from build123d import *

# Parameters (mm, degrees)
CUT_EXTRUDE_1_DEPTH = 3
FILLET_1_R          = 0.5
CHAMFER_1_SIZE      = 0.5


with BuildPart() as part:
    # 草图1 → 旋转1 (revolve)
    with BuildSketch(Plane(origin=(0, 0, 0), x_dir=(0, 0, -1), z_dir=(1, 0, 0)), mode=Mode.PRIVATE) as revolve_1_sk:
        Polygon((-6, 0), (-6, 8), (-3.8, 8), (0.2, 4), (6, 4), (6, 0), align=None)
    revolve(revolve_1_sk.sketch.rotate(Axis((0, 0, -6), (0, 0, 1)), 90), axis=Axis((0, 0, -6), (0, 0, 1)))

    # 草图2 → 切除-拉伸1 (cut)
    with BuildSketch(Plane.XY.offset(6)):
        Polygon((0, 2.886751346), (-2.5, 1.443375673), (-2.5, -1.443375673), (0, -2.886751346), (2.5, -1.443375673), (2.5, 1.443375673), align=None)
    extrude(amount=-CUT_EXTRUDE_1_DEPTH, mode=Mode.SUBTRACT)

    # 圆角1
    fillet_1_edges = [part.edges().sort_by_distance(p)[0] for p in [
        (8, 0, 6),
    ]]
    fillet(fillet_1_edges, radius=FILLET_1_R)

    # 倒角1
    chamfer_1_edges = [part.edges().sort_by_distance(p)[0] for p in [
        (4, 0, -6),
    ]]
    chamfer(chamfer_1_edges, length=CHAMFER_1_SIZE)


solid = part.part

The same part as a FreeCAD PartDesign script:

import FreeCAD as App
import Part
import Sketcher
from FreeCAD import Vector
Q = App.Units.Quantity


def edges_at(feature, points):
    """Names of the edges that pass closest to the given points."""
    edges = feature.Shape.Edges
    near = lambda p: min(range(len(edges)), key=lambda i: edges[i].distToShape(Part.Vertex(*p))[0])
    return sorted({f"Edge{near(p) + 1}" for p in points})

doc = App.newDocument("Part")
body = doc.addObject("PartDesign::Body", "Body")

# Sketch on YZ plane
sketch1 = body.newObject("Sketcher::SketchObject", "Sketch")
sketch1.AttachmentSupport = (doc.getObject("YZ_Plane"), [""])
sketch1.MapMode = "FlatFace"
sketch1.addGeometry([
    Part.LineSegment(Vector(8, 6, 0), Vector(0, 6, 0)),  # 0
    Part.LineSegment(Vector(0, 6, 0), Vector(0, -6, 0)),  # 1
    Part.LineSegment(Vector(0, -6, 0), Vector(4, -6, 0)),  # 2
    Part.LineSegment(Vector(4, -6, 0), Vector(4, -0.2, 0)),  # 3
    Part.LineSegment(Vector(4, -0.2, 0), Vector(8, 3.8, 0)),  # 4
    Part.LineSegment(Vector(8, 3.8, 0), Vector(8, 6, 0)),  # 5
], False)
sketch1.addConstraint([
    Sketcher.Constraint("Coincident", 0, 2, 1, 1),
    Sketcher.Constraint("Coincident", 1, 2, 2, 1),
    Sketcher.Constraint("Coincident", 2, 2, 3, 1),
    Sketcher.Constraint("Coincident", 3, 2, 4, 1),
    Sketcher.Constraint("Coincident", 4, 2, 5, 1),
    Sketcher.Constraint("Coincident", 5, 2, 0, 1),
    Sketcher.Constraint("Horizontal", 0),
    Sketcher.Constraint("Vertical", 1),
    Sketcher.Constraint("Horizontal", 2),
    Sketcher.Constraint("Vertical", 3),
    Sketcher.Constraint("Vertical", 5),
    Sketcher.Constraint("Symmetric", 0, 2, 1, 2, -1, 1),
    Sketcher.Constraint("DistanceX", 0, 2, 0, 1, Q("8 mm")),
    Sketcher.Constraint("DistanceX", 2, 1, 2, 2, Q("4 mm")),
    Sketcher.Constraint("DistanceY", 1, 2, 1, 1, Q("12 mm")),
    Sketcher.Constraint("Angle", 4, Q("45 deg")),
    Sketcher.Constraint("DistanceY", 3, 1, 3, 2, Q("5.8 mm")),
])
revolution = body.newObject("PartDesign::Revolution", "Revolution")
revolution.Profile = sketch1
revolution.ReferenceAxis = (sketch1, ["V_Axis"])
revolution.Angle = 360

# Sketch on XY plane
sketch2 = body.newObject("Sketcher::SketchObject", "Sketch001")
sketch2.AttachmentSupport = (doc.getObject("XY_Plane"), [""])
sketch2.MapMode = "FlatFace"
sketch2.AttachmentOffset = App.Placement(Vector(0, 0, 6), App.Rotation())
sketch2.addGeometry([
    Part.LineSegment(Vector(0, 2.9, 0), Vector(-2.5, 1.4, 0)),  # 0
    Part.LineSegment(Vector(-2.5, 1.4, 0), Vector(-2.5, -1.4, 0)),  # 1
    Part.LineSegment(Vector(-2.5, -1.4, 0), Vector(0, -2.9, 0)),  # 2
    Part.LineSegment(Vector(0, -2.9, 0), Vector(2.5, -1.4, 0)),  # 3
    Part.LineSegment(Vector(2.5, -1.4, 0), Vector(2.5, 1.4, 0)),  # 4
    Part.LineSegment(Vector(2.5, 1.4, 0), Vector(0, 2.9, 0)),  # 5
], False)
sketch2.addConstraint([
    Sketcher.Constraint("Coincident", 0, 2, 1, 1),
    Sketcher.Constraint("Coincident", 1, 2, 2, 1),
    Sketcher.Constraint("Coincident", 2, 2, 3, 1),
    Sketcher.Constraint("Coincident", 3, 2, 4, 1),
    Sketcher.Constraint("Coincident", 4, 2, 5, 1),
    Sketcher.Constraint("Coincident", 5, 2, 0, 1),
    Sketcher.Constraint("Vertical", 1),
    Sketcher.Constraint("Vertical", 4),
    Sketcher.Constraint("Symmetric", 0, 2, 3, 2, -1, 1),
    Sketcher.Constraint("Symmetric", 2, 2, 5, 2, -1, 1),
    Sketcher.Constraint("PointOnObject", 2, 2, -2),
    Sketcher.Constraint("Parallel", 2, 5),
    Sketcher.Constraint("Horizontal", 1, 2, 3, 2),
    Sketcher.Constraint("Angle", 0, Q("-150 deg")),
    Sketcher.Constraint("DistanceX", 1, 2, 3, 2, Q("5 mm")),
    Sketcher.Constraint("DistanceY", 1, 2, 1, 1, Q("2.886751 mm")),
])
pocket1 = body.newObject("PartDesign::Pocket", "Pocket")
pocket1.Profile = sketch2
pocket1.Length = 3
doc.recompute()

fillet = body.newObject("PartDesign::Fillet", "Fillet")
fillet.Base = (pocket1, edges_at(pocket1, [(8, 0, 6)]))
fillet.Radius = 0.5
doc.recompute()

chamfer = body.newObject("PartDesign::Chamfer", "Chamfer")
chamfer.Base = (fillet, edges_at(fillet, [(4, 0, -6)]))
chamfer.Size = 0.5

doc.recompute()
